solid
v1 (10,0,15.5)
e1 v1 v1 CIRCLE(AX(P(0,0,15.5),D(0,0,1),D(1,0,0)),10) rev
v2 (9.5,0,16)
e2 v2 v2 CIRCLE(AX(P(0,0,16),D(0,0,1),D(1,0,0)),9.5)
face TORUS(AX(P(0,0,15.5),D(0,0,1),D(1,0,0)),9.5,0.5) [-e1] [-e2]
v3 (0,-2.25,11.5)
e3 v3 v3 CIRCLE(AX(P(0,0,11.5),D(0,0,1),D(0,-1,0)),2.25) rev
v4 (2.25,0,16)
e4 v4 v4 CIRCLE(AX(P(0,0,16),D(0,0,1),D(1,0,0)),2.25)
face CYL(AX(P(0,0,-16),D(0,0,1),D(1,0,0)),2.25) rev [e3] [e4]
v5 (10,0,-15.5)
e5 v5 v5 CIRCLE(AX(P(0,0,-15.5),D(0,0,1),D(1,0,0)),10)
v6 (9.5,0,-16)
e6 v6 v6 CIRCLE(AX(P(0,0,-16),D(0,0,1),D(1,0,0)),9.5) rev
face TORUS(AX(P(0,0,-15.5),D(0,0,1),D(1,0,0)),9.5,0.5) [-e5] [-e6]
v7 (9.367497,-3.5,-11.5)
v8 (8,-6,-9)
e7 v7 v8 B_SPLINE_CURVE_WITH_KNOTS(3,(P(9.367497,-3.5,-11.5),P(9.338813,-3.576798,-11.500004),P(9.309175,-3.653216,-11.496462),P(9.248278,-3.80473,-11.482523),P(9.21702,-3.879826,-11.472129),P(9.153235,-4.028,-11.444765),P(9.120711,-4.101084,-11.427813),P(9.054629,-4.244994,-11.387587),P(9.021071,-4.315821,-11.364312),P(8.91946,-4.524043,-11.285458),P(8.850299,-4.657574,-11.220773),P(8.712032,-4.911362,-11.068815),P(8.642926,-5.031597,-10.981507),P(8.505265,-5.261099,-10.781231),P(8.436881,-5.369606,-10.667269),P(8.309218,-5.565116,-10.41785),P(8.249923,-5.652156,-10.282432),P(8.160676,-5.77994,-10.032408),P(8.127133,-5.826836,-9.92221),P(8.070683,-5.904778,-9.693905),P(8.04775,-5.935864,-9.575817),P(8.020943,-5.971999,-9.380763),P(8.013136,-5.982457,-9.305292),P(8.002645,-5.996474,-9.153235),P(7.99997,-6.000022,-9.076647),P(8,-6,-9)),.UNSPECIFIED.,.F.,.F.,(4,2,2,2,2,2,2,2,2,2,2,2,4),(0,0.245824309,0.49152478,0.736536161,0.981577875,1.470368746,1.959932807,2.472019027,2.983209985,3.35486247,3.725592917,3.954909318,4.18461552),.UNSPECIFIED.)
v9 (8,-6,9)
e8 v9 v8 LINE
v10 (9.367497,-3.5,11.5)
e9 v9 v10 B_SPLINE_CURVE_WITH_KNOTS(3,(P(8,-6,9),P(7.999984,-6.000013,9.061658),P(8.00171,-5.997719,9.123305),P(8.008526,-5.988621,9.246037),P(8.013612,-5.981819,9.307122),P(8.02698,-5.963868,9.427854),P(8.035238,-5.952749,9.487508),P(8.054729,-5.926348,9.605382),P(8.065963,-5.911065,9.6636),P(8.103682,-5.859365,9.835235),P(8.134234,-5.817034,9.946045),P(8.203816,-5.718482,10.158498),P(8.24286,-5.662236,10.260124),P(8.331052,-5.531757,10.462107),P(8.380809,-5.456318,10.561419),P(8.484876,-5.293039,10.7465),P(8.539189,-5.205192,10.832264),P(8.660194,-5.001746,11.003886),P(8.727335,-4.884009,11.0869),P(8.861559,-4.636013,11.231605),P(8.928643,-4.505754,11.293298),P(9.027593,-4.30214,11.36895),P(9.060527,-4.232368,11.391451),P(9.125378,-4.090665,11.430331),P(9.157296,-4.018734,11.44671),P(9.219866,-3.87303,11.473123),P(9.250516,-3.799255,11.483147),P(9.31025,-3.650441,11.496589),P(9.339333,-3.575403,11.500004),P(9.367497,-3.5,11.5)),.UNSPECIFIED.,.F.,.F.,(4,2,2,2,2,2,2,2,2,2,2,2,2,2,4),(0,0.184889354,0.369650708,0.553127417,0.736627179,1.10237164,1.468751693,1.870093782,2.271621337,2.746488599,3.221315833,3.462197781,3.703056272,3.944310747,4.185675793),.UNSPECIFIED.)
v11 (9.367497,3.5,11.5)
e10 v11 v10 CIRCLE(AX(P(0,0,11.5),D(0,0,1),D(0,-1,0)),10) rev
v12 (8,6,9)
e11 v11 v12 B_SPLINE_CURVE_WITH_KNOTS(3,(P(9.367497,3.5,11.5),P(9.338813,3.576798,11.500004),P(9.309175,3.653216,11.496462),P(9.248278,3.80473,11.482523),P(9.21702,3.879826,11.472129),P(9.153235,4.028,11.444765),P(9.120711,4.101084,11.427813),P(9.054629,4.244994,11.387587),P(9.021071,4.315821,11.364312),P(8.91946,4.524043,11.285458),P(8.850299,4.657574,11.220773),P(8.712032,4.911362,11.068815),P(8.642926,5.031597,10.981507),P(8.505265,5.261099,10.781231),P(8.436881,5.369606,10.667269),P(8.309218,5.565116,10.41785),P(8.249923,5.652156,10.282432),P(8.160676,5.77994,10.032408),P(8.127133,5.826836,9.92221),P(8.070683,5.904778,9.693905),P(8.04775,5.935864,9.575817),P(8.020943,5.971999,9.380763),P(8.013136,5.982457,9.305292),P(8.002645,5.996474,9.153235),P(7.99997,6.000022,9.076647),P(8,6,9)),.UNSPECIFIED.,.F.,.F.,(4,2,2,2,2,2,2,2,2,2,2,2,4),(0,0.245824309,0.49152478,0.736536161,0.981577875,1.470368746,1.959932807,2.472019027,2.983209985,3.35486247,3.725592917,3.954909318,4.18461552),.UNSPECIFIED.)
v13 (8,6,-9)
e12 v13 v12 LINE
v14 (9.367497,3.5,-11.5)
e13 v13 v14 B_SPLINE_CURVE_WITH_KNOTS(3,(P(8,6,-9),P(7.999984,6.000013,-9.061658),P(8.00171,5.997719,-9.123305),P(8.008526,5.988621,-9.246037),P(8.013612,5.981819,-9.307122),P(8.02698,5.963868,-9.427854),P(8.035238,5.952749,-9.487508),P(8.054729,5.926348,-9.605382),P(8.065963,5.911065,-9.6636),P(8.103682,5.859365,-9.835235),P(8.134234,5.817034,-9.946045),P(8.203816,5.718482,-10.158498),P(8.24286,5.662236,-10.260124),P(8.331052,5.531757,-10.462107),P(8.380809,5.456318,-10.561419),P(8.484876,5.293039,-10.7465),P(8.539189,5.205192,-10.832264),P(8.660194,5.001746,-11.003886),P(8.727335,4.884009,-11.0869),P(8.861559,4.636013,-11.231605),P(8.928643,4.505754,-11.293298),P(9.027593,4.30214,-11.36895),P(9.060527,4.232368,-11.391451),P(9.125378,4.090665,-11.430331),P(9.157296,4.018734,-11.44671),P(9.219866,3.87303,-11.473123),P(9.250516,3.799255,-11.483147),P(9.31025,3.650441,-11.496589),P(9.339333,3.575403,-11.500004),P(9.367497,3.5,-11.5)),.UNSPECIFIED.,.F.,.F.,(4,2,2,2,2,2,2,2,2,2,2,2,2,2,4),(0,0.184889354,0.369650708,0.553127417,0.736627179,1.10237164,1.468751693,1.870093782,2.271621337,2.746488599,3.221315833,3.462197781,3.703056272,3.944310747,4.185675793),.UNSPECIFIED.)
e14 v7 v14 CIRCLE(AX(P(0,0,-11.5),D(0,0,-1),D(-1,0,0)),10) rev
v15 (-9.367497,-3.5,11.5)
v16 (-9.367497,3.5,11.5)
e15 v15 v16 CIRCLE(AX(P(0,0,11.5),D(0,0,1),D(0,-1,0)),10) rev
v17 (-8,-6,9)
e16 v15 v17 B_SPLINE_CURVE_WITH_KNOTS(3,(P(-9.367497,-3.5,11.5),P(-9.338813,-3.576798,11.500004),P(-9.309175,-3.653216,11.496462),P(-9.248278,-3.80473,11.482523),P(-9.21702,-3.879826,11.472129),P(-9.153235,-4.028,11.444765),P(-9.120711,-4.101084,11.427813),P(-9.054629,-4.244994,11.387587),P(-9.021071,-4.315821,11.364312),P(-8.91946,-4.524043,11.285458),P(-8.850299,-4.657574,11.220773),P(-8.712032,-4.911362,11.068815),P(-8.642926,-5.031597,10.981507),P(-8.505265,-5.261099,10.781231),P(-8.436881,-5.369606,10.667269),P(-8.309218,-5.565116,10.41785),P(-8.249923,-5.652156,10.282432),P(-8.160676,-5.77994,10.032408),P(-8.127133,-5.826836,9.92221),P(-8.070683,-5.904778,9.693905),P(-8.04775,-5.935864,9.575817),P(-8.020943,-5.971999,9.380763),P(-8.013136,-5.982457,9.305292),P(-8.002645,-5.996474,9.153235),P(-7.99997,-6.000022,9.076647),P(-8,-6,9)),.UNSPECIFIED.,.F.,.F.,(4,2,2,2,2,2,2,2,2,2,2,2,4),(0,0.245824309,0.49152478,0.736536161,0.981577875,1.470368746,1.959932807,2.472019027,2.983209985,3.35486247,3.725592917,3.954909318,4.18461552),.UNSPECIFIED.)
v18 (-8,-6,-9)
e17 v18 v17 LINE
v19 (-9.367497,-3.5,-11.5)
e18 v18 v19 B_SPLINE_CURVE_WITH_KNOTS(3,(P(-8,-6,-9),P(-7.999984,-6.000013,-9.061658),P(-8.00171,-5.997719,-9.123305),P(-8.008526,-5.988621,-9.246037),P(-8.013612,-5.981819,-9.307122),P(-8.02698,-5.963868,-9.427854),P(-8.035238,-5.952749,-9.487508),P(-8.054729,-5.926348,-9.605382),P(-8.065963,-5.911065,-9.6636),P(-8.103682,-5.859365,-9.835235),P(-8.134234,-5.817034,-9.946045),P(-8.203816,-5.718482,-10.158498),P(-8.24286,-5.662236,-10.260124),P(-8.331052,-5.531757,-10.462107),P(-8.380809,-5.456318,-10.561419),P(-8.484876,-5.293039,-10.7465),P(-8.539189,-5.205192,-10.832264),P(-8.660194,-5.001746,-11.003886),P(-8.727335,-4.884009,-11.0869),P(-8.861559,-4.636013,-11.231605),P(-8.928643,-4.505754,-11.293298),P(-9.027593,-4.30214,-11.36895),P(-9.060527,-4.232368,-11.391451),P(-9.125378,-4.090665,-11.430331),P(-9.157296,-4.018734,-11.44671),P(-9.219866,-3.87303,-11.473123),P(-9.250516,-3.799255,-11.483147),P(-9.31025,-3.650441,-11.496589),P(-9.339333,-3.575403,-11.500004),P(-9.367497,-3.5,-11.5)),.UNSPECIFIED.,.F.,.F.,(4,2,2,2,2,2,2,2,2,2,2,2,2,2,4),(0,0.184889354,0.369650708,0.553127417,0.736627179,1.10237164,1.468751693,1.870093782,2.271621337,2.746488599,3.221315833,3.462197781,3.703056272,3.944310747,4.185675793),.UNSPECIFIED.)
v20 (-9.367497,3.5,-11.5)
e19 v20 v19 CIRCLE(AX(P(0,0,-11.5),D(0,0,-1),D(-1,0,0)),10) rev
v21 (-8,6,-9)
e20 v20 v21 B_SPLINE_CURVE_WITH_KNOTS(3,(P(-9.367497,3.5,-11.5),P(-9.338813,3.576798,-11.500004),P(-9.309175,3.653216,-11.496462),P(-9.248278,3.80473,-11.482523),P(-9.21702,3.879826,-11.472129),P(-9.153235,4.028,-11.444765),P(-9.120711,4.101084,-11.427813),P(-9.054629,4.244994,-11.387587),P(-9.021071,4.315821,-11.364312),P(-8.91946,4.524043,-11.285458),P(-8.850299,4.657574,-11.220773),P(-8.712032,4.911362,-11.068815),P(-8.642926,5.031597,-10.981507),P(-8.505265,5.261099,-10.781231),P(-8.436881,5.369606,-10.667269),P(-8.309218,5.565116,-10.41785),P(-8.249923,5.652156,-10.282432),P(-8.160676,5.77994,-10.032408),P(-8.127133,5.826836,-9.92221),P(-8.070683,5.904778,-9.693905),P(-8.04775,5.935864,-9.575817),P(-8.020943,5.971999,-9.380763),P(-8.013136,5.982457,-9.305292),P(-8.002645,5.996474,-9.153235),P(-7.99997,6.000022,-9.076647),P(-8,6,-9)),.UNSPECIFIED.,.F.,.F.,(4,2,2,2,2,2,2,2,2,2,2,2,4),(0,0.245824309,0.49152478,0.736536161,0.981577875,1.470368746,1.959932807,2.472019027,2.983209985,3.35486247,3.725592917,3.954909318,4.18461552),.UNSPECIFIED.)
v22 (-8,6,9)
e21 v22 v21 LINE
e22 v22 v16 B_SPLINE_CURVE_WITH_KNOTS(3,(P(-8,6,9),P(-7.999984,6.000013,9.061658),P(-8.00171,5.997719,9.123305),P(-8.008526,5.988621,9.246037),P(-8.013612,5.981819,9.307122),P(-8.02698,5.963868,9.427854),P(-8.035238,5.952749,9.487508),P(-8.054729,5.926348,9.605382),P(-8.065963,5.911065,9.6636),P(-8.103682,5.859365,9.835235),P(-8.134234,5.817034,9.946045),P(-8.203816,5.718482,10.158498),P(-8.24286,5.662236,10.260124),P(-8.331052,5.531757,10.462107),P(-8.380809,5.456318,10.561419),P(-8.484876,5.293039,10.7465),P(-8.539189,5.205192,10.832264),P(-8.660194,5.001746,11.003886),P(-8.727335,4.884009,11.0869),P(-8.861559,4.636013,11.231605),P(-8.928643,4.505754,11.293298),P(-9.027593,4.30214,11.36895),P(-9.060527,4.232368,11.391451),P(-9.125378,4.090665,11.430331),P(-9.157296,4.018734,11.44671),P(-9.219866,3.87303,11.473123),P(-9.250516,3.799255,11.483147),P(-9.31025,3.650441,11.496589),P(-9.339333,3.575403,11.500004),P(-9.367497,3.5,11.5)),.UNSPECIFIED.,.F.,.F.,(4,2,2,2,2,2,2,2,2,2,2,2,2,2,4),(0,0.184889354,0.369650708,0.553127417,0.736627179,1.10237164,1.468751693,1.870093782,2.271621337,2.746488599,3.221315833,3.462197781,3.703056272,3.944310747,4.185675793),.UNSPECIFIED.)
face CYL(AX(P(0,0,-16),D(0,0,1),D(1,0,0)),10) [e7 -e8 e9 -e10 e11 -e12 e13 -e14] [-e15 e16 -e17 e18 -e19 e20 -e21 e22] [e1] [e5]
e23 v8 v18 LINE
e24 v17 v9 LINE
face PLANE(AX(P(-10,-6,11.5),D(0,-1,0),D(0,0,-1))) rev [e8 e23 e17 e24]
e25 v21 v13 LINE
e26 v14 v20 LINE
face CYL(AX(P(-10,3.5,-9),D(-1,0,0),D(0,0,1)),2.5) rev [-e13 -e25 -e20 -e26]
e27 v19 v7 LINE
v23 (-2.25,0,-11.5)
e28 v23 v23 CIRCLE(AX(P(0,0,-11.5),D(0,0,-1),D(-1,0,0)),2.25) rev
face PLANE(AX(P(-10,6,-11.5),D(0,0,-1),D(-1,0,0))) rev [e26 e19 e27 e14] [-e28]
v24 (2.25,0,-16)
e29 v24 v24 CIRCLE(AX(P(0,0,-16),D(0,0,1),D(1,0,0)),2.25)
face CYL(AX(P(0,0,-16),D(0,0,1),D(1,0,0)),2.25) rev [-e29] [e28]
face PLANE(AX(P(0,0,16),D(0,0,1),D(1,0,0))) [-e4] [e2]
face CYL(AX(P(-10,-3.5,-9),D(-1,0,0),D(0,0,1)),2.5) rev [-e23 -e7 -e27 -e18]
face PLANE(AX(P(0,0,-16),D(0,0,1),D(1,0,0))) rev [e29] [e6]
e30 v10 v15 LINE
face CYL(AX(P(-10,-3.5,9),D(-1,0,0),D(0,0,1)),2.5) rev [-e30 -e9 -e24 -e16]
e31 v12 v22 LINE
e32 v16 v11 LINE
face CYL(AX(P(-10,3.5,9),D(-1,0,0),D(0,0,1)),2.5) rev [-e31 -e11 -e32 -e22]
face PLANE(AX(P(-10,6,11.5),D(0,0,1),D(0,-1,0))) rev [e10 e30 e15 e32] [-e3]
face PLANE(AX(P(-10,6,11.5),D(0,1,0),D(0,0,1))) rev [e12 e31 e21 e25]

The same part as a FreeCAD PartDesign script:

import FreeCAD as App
import Part
import Sketcher
from FreeCAD import Vector


def edges_at(feature, points):
    """Names of the edges that pass closest to the given points."""
    edges = feature.Shape.Edges
    near = lambda p: min(range(len(edges)), key=lambda i: edges[i].distToShape(Part.Vertex(*p))[0])
    return sorted({f"Edge{near(p) + 1}" for p in points})


def add_polygon(sketch, points):
    """Adds a closed chain of lines whose ends are joined by coincident constraints."""
    first, n = sketch.GeometryCount, len(points)
    for a, b in zip(points, points[1:] + points[:1]):
        sketch.addGeometry(Part.LineSegment(App.Vector(*a, 0), App.Vector(*b, 0)), False)
    for i in range(n):
        sketch.addConstraint(Sketcher.Constraint("Coincident", first + i, 2, first + (i + 1) % n, 1))

doc = App.newDocument("Part")
body = doc.addObject("PartDesign::Body", "Body")

sketch1 = doc.addObject("Sketcher::SketchObject", "Sketch")
body.addObject(sketch1)
sketch1.AttachmentSupport = (doc.XY_Plane, [""])
sketch1.MapMode = "FlatFace"
sketch1.addGeometry([
    Part.Circle(Vector(0, 0, 0), Vector(0, 0, 1), 10),
    Part.Circle(Vector(0, 0, 0), Vector(0, 0, 1), 2.25),
], False)
sketch1.addConstraint([
    Sketcher.Constraint("Coincident", 0, 3, -1, 1),
    Sketcher.Constraint("Coincident", 1, 3, -1, 1),
    Sketcher.Constraint("Diameter", 0, 20.0),
    Sketcher.Constraint("Diameter", 1, 4.5),
])
pad1 = doc.addObject("PartDesign::Pad", "Pad")
body.addObject(pad1)
pad1.Profile = sketch1
pad1.Type = "TwoLengths"
pad1.Length = 16
pad1.Length2 = 16

sketch2 = doc.addObject("Sketcher::SketchObject", "Sketch001")
body.addObject(sketch2)
sketch2.AttachmentSupport = (doc.YZ_Plane, [""])
sketch2.MapMode = "FlatFace"
add_polygon(sketch2, [(6, 11.5), (-6, 11.5), (-6, -11.5), (6, -11.5)])
sketch2.addConstraint([
    Sketcher.Constraint("Horizontal", 0),
    Sketcher.Constraint("Vertical", 1),
    Sketcher.Constraint("Horizontal", 2),
    Sketcher.Constraint("Vertical", 3),
    Sketcher.Constraint("Symmetric", 0, 2, 2, 2, -1, 1),
    Sketcher.Constraint("DistanceX", 0, 2, 0, 1, 12.0),
    Sketcher.Constraint("DistanceY", 1, 2, 1, 1, 23.0),
])
pocket1 = doc.addObject("PartDesign::Pocket", "Pocket")
body.addObject(pocket1)
pocket1.Profile = sketch2
pocket1.Type = "ThroughAll"
pocket1.Midplane = True
doc.recompute()

fillet = doc.addObject("PartDesign::Fillet", "Fillet")
body.addObject(fillet)
fillet.Base = (pocket1, edges_at(pocket1, [(-10, 0, -16), (-10, 0, 16)]))
fillet.Radius = 0.5
doc.recompute()

fillet2 = doc.addObject("PartDesign::Fillet", "Fillet001")
body.addObject(fillet2)
fillet2.Base = (fillet, edges_at(fillet, [
    (0, -6, 11.5),
    (0, 6, -11.5),
    (0, 6, 11.5),
    (0, -6, -11.5),
]))
fillet2.Radius = 2.5

doc.recompute()
